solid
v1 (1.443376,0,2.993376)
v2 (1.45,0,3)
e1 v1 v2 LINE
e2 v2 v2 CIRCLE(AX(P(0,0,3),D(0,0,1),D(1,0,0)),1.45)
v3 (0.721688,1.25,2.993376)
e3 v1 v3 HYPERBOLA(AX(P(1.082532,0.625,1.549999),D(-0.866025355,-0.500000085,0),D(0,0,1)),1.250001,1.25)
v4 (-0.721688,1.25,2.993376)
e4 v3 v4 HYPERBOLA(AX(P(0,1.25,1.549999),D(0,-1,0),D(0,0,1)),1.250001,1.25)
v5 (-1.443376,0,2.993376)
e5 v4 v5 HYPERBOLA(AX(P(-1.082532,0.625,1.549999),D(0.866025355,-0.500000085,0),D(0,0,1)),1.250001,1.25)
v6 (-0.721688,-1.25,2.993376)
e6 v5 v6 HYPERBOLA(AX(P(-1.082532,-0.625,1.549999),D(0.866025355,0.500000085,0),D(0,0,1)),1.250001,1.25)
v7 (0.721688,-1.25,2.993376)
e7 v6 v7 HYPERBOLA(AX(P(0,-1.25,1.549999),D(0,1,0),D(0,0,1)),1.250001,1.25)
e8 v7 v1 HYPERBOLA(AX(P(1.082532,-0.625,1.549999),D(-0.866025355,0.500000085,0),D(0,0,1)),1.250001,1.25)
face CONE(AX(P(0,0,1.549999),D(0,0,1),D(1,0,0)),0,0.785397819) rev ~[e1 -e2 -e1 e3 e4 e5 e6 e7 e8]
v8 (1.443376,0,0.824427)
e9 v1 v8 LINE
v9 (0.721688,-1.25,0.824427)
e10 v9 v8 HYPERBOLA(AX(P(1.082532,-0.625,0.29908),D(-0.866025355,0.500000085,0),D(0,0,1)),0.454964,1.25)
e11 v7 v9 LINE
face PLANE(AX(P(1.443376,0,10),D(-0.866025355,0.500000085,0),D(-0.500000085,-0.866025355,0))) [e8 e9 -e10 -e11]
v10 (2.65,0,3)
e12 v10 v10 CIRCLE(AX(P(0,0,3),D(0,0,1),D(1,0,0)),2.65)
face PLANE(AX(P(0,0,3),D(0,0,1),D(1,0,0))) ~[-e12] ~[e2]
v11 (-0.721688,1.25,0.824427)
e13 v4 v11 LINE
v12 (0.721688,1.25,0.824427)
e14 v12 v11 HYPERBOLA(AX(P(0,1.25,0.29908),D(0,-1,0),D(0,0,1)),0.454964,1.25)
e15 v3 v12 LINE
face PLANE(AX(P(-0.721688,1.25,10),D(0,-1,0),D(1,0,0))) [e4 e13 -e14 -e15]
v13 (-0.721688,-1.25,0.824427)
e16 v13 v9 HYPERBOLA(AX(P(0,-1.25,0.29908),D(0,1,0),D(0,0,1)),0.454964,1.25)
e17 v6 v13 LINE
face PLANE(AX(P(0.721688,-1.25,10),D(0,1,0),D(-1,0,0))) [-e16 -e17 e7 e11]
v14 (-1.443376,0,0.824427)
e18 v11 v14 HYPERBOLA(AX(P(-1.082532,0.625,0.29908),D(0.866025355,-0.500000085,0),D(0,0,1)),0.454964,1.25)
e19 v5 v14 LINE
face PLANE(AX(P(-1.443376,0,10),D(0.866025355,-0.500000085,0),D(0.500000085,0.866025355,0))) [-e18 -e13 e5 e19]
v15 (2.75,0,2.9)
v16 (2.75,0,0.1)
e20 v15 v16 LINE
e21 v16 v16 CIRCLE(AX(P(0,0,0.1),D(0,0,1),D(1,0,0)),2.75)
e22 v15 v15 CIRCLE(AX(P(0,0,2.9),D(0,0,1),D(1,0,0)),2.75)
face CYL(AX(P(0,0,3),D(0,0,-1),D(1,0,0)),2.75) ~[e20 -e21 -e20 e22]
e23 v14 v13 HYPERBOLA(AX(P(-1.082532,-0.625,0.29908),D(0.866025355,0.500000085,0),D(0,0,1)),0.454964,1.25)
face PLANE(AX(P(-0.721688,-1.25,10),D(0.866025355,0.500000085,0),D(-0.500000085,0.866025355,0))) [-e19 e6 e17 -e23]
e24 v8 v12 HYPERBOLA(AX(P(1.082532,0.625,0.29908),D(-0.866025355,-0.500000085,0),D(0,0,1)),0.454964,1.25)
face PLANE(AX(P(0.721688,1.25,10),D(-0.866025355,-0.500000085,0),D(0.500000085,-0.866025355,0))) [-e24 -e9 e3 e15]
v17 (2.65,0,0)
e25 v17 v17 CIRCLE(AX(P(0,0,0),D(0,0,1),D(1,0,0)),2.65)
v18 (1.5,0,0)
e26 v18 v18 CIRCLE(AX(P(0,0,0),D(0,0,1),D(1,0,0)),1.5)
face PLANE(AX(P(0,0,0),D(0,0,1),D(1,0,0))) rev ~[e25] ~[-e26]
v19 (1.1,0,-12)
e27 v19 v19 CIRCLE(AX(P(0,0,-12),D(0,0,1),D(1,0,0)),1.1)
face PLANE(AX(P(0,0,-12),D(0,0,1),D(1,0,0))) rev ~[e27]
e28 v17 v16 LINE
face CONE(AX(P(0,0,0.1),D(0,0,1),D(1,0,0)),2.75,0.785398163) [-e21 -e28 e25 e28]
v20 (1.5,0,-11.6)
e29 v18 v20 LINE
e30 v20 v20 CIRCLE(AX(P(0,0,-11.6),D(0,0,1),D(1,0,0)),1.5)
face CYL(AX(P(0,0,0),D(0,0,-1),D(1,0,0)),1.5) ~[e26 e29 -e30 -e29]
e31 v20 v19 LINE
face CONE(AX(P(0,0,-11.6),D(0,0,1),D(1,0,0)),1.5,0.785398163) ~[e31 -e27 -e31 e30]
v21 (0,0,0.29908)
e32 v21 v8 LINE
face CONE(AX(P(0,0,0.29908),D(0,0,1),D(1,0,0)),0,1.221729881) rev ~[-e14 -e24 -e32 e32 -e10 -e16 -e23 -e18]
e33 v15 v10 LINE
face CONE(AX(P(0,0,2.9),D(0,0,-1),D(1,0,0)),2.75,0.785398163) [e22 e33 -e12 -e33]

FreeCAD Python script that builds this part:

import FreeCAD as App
import Part
import Sketcher
Q = App.Units.Quantity


def edges_at(feature, points):
    """Names of the edges that pass closest to the given points."""
    edges = feature.Shape.Edges
    near = lambda p: min(range(len(edges)), key=lambda i: edges[i].distToShape(Part.Vertex(*p))[0])
    return sorted({f"Edge{near(p) + 1}" for p in points})


def add_polygon(sketch, points):
    """Adds a closed chain of lines whose ends are joined by coincident constraints."""
    first, n = sketch.GeometryCount, len(points)
    for a, b in zip(points, points[1:] + points[:1]):
        sketch.addGeometry(Part.LineSegment(App.Vector(*a, 0), App.Vector(*b, 0)), False)
    for i in range(n):
        sketch.addConstraint(Sketcher.Constraint("Coincident", first + i, 2, first + (i + 1) % n, 1))

doc = App.newDocument("Part")
body = doc.addObject("PartDesign::Body", "Body")

sketch1 = doc.addObject("Sketcher::SketchObject", "Sketch")
body.addObject(sketch1)
sketch1.AttachmentSupport = (doc.XZ_Plane, [""])
sketch1.MapMode = "FlatFace"
add_polygon(sketch1, [(0, 0.3), (2.8, 1.3), (2.8, 10), (0, 10)])
sketch1.addConstraint(Sketcher.Constraint("Vertical", 1))
sketch1.addConstraint(Sketcher.Constraint("Horizontal", 2))
sketch1.addConstraint(Sketcher.Constraint("Vertical", 3))
sketch1.addConstraint(Sketcher.Constraint("PointOnObject", 2, 2, -2))
sketch1.addConstraint(Sketcher.Constraint("DistanceY", 1, 1, 1, 2, Q("8.7 mm")))
sketch1.addConstraint(Sketcher.Constraint("DistanceY", -1, 1, 1, 2, Q("10 mm")))
sketch1.addConstraint(Sketcher.Constraint("DistanceX", 2, 2, 2, 1, Q("2.75 mm")))
sketch1.addConstraint(Sketcher.Constraint("DistanceY", 3, 2, 3, 1, Q("9.70092 mm")))
revolution = doc.addObject("PartDesign::Revolution", "Revolution")
body.addObject(revolution)
revolution.Profile = sketch1
revolution.ReferenceAxis = (sketch1, ["V_Axis"])
revolution.Angle = 360

sketch2 = doc.addObject("Sketcher::SketchObject", "Sketch001")
body.addObject(sketch2)
sketch2.AttachmentSupport = (doc.XY_Plane, [""])
sketch2.MapMode = "FlatFace"
sketch2.AttachmentOffset = App.Placement(App.Vector(0, 0, 10), App.Rotation())
sketch2.addGeometry(Part.Circle(App.Vector(0, 0, 0), App.Vector(0, 0, 1), 3.8), False)
add_polygon(sketch2, [(1.4, 0), (0.7, -1.2), (-0.7, -1.2), (-1.4, 0), (-0.7, 1.2), (0.7, 1.2)])
sketch2.addConstraint(Sketcher.Constraint("Horizontal", 2))
sketch2.addConstraint(Sketcher.Constraint("Horizontal", 5))
sketch2.addConstraint(Sketcher.Constraint("Coincident", 0, 3, -1, 1))
sketch2.addConstraint(Sketcher.Constraint("Symmetric", 1, 2, 4, 2, -1, 1))
sketch2.addConstraint(Sketcher.Constraint("Symmetric", 3, 2, 6, 2, -1, 1))
sketch2.addConstraint(Sketcher.Constraint("PointOnObject", 3, 2, -1))
sketch2.addConstraint(Sketcher.Constraint("Parallel", 3, 6))
sketch2.addConstraint(Sketcher.Constraint("Vertical", 2, 2, 4, 2))
sketch2.addConstraint(Sketcher.Constraint("Diameter", 0, Q("7.5 mm")))
sketch2.addConstraint(Sketcher.Constraint("Angle", 1, Q("-120.000006 deg")))
sketch2.addConstraint(Sketcher.Constraint("DistanceY", 2, 2, 4, 2, Q("2.5 mm")))
sketch2.addConstraint(Sketcher.Constraint("DistanceX", 2, 2, 2, 1, Q("1.443376 mm")))
pocket1 = doc.addObject("PartDesign::Pocket", "Pocket")
body.addObject(pocket1)
pocket1.Profile = sketch2
pocket1.Type = "ThroughAll"
body2 = doc.addObject("PartDesign::Body", "Body001")

sketch3 = doc.addObject("Sketcher::SketchObject", "Sketch002")
body2.addObject(sketch3)
sketch3.AttachmentSupport = (doc.getObject("XZ_Plane001"), [""])
sketch3.MapMode = "FlatFace"
add_polygon(sketch3, [(2.8, 3), (1.4, 3), (0, 1.5), (0, -12), (1.5, -12), (1.5, 0), (2.8, 0)])
sketch3.addConstraint(Sketcher.Constraint("Horizontal", 0))
sketch3.addConstraint(Sketcher.Constraint("Vertical", 2))
sketch3.addConstraint(Sketcher.Constraint("Horizontal", 3))
sketch3.addConstraint(Sketcher.Constraint("Vertical", 4))
sketch3.addConstraint(Sketcher.Constraint("Horizontal", 5))
sketch3.addConstraint(Sketcher.Constraint("Vertical", 6))
sketch3.addConstraint(Sketcher.Constraint("PointOnObject", 1, 2, -2))
sketch3.addConstraint(Sketcher.Constraint("PointOnObject", 4, 2, -1))
sketch3.addConstraint(Sketcher.Constraint("DistanceY", 4, 1, 4, 2, Q("12 mm")))
sketch3.addConstraint(Sketcher.Constraint("DistanceY", 6, 1, 6, 2, Q("3 mm")))
sketch3.addConstraint(Sketcher.Constraint("Angle", 1, Q("-134.99998 deg")))
sketch3.addConstraint(Sketcher.Constraint("DistanceX", 0, 2, 0, 1, Q("1.3 mm")))
sketch3.addConstraint(Sketcher.Constraint("DistanceX", 3, 1, 3, 2, Q("1.5 mm")))
sketch3.addConstraint(Sketcher.Constraint("DistanceX", 5, 1, 5, 2, Q("1.25 mm")))
revolution2 = doc.addObject("PartDesign::Revolution", "Revolution001")
body2.addObject(revolution2)
revolution2.Profile = sketch3
revolution2.ReferenceAxis = (sketch3, ["V_Axis"])
revolution2.Angle = 360
doc.recompute()

boolean = doc.addObject("PartDesign::Boolean", "Boolean")
body2.addObject(boolean)
boolean.Type = "Cut"
boolean.addObjects([body])
doc.recompute()

chamfer = doc.addObject("PartDesign::Chamfer", "Chamfer")
body2.addObject(chamfer)
chamfer.Base = (boolean, edges_at(boolean, [(-1.5, 0, -12)]))
chamfer.Size = 0.4
doc.recompute()

chamfer2 = doc.addObject("PartDesign::Chamfer", "Chamfer001")
body2.addObject(chamfer2)
chamfer2.Base = (chamfer, edges_at(chamfer, [(-2.75, 0, 0), (-2.75, 0, 3)]))
chamfer2.Size = 0.1

doc.recompute()
